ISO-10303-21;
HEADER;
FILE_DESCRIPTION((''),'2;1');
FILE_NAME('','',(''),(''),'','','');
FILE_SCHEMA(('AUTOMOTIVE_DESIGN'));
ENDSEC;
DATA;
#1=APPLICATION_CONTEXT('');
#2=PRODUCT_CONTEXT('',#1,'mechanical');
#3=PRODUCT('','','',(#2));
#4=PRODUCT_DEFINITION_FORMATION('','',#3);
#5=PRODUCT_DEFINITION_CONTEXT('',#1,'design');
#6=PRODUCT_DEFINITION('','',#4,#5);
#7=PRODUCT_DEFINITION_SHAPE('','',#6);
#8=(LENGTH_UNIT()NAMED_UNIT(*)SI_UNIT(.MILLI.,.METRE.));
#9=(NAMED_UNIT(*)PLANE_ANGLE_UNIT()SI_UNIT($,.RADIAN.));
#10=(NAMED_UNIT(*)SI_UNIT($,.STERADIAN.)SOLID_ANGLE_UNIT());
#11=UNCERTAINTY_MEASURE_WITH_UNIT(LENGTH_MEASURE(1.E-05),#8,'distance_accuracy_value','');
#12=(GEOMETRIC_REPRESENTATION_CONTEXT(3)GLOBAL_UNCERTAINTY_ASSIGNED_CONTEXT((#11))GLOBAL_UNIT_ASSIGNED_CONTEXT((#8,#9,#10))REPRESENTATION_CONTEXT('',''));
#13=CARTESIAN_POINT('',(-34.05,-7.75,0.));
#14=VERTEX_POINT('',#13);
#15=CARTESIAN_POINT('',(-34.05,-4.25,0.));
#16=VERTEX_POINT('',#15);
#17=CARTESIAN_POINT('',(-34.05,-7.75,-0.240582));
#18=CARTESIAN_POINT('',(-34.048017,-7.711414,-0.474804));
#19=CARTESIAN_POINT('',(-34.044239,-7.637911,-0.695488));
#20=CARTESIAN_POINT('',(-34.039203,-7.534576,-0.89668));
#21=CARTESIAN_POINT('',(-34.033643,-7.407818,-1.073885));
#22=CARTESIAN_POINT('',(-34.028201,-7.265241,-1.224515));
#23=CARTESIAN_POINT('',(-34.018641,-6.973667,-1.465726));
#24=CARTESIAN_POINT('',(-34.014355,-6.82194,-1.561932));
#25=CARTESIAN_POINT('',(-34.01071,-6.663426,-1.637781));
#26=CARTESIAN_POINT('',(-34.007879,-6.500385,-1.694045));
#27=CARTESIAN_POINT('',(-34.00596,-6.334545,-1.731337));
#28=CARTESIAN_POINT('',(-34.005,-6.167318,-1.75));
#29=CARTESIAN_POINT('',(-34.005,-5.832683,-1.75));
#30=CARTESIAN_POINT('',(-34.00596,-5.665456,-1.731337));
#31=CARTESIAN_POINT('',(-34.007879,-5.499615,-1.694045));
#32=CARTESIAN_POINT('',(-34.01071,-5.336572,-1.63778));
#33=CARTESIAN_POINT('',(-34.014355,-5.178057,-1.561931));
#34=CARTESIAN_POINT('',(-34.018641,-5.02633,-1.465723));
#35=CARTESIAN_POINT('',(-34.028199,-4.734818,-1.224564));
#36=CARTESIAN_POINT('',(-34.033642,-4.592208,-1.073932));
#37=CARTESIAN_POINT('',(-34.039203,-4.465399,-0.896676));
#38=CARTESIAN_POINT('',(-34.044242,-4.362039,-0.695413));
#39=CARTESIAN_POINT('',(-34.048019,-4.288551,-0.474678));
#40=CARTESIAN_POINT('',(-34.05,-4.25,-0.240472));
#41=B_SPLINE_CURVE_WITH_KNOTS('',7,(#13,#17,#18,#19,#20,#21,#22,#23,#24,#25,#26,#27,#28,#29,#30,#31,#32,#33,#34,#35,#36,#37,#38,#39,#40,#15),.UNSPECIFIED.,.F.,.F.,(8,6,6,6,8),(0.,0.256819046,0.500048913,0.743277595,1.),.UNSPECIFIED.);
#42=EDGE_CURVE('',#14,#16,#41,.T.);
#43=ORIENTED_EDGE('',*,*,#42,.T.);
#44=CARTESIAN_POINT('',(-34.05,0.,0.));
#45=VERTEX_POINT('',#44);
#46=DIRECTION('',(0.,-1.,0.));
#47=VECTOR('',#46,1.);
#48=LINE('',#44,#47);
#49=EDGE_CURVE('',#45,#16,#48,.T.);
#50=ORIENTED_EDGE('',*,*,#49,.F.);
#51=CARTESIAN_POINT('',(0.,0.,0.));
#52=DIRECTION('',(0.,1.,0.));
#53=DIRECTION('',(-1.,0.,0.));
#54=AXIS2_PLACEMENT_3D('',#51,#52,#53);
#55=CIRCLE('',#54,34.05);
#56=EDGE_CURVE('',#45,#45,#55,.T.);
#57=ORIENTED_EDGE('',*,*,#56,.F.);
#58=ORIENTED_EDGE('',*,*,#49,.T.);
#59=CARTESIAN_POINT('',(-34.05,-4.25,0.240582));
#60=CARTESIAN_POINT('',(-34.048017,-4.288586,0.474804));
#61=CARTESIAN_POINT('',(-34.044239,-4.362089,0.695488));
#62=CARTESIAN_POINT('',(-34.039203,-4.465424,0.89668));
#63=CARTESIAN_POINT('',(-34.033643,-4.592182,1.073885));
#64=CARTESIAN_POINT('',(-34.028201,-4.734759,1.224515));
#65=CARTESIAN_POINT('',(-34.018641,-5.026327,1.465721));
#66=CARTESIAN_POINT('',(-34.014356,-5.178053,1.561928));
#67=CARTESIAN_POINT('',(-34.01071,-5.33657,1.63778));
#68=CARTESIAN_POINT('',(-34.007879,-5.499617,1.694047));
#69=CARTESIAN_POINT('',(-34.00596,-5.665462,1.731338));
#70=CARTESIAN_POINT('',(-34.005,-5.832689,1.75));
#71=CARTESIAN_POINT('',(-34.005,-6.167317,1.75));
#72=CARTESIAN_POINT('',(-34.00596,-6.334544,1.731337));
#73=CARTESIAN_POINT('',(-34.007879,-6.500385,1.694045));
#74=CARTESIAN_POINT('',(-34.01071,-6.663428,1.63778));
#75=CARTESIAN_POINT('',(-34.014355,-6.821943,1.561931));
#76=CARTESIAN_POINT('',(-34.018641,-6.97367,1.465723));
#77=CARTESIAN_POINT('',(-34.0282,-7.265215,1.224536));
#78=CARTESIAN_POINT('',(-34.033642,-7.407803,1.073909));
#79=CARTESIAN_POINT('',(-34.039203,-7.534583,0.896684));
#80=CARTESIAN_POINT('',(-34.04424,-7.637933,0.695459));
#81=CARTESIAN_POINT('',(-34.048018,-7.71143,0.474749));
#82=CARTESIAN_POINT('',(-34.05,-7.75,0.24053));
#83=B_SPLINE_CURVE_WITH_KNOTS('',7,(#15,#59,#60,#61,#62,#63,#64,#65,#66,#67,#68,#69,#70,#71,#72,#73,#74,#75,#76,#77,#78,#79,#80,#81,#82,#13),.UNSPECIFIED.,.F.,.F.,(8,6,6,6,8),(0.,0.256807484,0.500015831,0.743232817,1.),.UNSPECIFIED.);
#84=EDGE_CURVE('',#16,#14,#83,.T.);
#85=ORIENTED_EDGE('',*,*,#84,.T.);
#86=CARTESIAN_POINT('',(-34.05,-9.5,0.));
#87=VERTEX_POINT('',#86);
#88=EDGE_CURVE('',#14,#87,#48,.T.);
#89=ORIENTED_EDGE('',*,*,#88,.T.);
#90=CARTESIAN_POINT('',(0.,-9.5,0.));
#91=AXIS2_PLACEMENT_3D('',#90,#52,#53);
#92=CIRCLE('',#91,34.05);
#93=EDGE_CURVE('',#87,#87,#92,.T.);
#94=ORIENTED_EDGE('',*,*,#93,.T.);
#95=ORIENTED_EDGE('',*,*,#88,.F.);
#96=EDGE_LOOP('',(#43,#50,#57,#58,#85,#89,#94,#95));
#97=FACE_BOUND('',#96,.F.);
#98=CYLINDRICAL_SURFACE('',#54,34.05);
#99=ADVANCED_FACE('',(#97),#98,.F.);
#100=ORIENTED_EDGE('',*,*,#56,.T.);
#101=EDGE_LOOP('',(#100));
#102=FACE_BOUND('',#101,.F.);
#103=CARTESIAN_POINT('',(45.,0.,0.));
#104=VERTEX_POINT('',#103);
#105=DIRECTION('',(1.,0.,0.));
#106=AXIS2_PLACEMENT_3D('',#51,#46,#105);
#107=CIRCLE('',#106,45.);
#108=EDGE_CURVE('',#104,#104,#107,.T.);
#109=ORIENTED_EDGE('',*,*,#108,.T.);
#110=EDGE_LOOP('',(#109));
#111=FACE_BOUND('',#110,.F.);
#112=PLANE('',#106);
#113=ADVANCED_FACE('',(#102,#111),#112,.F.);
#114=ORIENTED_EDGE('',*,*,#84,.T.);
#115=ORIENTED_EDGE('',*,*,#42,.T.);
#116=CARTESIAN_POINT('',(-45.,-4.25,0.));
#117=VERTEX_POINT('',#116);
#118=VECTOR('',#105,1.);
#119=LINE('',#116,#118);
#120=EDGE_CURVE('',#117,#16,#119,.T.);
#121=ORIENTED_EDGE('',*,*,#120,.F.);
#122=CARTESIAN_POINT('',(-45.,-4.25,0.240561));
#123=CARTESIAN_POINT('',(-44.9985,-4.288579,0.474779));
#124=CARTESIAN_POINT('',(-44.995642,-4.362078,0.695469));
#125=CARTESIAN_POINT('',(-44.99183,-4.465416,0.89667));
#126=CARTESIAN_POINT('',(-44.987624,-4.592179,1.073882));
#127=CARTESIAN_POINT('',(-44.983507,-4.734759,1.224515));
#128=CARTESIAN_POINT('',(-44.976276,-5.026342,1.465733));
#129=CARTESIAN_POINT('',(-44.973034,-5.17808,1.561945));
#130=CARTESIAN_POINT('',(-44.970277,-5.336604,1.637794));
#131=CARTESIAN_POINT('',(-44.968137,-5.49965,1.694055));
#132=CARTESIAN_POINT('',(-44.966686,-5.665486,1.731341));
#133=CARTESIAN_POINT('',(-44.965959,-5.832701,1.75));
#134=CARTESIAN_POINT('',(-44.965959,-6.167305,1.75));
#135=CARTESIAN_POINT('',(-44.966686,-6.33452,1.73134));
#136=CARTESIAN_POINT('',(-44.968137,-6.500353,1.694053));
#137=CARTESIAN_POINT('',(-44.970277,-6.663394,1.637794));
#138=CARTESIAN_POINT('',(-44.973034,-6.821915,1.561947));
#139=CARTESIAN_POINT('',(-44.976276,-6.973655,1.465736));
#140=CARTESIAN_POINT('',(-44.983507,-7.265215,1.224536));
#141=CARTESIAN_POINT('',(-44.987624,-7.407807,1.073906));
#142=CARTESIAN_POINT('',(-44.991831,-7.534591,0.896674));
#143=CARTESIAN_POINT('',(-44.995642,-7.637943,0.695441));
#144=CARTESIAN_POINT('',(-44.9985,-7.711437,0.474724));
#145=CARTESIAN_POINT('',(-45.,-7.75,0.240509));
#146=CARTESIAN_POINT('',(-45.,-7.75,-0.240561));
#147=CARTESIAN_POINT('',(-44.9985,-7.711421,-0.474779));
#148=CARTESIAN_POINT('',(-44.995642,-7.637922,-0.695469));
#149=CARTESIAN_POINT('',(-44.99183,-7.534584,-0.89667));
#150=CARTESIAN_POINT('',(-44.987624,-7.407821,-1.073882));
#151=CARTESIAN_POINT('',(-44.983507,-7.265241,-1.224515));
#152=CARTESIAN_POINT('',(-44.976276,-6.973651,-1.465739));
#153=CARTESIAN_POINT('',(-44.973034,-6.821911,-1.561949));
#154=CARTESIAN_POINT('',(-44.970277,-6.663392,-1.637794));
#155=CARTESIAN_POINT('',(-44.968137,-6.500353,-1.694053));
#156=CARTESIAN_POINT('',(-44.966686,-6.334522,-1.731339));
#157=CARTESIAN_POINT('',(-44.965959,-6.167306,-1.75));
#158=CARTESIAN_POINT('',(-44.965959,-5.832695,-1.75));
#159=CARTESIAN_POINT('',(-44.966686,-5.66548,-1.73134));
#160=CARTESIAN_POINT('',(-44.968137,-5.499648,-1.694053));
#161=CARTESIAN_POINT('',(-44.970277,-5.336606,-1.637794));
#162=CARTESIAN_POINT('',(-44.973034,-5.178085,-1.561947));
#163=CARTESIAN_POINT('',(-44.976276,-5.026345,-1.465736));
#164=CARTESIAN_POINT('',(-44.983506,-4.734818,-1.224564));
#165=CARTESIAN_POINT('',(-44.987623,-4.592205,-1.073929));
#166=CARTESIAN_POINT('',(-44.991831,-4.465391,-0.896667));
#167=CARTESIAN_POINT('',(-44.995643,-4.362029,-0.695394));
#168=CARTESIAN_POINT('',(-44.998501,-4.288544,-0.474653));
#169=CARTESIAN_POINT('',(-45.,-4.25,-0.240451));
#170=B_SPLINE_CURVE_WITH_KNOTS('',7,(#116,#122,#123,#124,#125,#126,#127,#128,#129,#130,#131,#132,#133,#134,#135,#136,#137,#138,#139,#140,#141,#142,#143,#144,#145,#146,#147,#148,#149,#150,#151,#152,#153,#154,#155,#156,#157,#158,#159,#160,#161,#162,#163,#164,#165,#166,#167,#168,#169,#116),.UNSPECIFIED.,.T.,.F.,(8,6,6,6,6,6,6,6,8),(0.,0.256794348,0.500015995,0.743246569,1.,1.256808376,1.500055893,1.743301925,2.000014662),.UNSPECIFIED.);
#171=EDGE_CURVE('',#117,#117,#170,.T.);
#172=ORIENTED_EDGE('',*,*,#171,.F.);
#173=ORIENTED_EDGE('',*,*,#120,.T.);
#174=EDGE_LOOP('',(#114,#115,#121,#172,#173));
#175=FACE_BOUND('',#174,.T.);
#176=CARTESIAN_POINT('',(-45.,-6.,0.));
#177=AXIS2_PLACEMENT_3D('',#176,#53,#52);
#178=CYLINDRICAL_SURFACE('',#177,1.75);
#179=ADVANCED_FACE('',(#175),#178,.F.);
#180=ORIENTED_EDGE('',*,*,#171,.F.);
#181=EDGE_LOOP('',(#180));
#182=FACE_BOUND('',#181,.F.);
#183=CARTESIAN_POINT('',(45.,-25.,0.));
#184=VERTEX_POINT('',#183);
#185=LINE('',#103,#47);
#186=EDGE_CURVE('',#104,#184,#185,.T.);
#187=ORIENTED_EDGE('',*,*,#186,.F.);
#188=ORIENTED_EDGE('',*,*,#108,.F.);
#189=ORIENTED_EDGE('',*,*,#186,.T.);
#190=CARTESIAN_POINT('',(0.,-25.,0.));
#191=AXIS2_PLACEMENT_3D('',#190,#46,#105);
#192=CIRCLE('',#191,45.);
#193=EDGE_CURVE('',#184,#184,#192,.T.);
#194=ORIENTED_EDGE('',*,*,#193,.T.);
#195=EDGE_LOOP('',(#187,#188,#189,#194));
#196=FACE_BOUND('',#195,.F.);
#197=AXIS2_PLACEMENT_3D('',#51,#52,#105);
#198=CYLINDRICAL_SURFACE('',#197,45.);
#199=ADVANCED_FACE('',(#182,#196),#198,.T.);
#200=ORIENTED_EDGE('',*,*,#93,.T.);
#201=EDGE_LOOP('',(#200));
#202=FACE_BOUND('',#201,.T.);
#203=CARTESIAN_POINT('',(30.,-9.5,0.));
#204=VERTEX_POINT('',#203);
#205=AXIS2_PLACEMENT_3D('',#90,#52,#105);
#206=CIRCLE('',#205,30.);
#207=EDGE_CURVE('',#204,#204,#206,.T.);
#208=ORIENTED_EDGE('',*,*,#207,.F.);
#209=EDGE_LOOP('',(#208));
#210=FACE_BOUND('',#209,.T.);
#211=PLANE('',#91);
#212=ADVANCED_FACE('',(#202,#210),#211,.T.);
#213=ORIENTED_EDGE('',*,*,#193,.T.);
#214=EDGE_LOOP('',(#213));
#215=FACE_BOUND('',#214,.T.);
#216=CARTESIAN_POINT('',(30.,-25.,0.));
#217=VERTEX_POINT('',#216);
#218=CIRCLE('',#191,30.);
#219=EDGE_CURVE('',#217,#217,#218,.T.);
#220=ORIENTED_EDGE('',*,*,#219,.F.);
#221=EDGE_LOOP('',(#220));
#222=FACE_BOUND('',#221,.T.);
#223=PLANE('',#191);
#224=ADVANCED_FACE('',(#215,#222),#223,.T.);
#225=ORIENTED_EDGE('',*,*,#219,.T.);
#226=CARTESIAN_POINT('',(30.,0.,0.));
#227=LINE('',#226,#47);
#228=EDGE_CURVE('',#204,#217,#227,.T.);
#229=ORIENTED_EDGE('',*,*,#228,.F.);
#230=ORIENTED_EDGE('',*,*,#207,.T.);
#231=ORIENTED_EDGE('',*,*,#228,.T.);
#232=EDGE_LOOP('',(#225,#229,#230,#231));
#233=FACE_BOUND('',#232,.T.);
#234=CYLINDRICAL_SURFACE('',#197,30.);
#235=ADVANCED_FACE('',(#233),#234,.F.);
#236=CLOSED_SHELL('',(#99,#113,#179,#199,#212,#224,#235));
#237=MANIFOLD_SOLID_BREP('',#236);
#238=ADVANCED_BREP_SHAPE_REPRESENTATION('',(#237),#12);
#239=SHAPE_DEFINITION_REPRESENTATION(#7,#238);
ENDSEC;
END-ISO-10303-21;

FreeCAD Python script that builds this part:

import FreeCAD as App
import Part
import Sketcher

V = App.Vector

doc = App.newDocument("Part")
body = doc.addObject("PartDesign::Body", "Body")

sketch1 = body.newObject("Sketcher::SketchObject", "Sketch")
sketch1.AttachmentSupport = (doc.getObject("XZ_Plane"), [""])
sketch1.MapMode = "FlatFace"
sketch1.addGeometry([
    Part.Circle(V(0, 0, 0), V(0, 0, 1), 45),
    Part.Circle(V(0, 0, 0), V(0, 0, 1), 30),
], False)
sketch1.addConstraint([
    Sketcher.Constraint("Coincident", 0, 3, -1, 1),
    Sketcher.Constraint("Coincident", 1, 3, -1, 1),
    Sketcher.Constraint("Diameter", 0, 90.0),
    Sketcher.Constraint("Diameter", 1, 60.0),
])
pad1 = body.newObject("PartDesign::Pad", "Pad")
pad1.Profile = sketch1
pad1.Length = 25

sketch2 = body.newObject("Sketcher::SketchObject", "Sketch001")
sketch2.AttachmentSupport = (doc.getObject("XZ_Plane"), [""])
sketch2.MapMode = "FlatFace"
sketch2.addGeometry(Part.Circle(V(0, 0, 0), V(0, 0, 1), 34), False)
sketch2.addConstraint([
    Sketcher.Constraint("Coincident", 0, 3, -1, 1),
    Sketcher.Constraint("Diameter", 0, 68.1),
])
pocket1 = body.newObject("PartDesign::Pocket", "Pocket")
pocket1.Profile = sketch2
pocket1.Length = 9.5
pocket1.Reversed = True

sketch3 = body.newObject("Sketcher::SketchObject", "Sketch002")
sketch3.AttachmentSupport = (doc.getObject("YZ_Plane"), [""])
sketch3.MapMode = "FlatFace"
sketch3.AttachmentOffset = App.Placement(V(0, 0, -45), App.Rotation())
sketch3.addGeometry(Part.Circle(V(-6, 0, 0), V(0, 0, 1), 1.8), False)
sketch3.addConstraint([
    Sketcher.Constraint("PointOnObject", 0, 3, -1),
    Sketcher.Constraint("Diameter", 0, 3.5),
    Sketcher.Constraint("DistanceX", 0, 3, -1, 1, 6.0),
])
pocket2 = body.newObject("PartDesign::Pocket", "Pocket001")
pocket2.Profile = sketch3
pocket2.Length = 25
pocket2.Reversed = True

doc.recompute()
